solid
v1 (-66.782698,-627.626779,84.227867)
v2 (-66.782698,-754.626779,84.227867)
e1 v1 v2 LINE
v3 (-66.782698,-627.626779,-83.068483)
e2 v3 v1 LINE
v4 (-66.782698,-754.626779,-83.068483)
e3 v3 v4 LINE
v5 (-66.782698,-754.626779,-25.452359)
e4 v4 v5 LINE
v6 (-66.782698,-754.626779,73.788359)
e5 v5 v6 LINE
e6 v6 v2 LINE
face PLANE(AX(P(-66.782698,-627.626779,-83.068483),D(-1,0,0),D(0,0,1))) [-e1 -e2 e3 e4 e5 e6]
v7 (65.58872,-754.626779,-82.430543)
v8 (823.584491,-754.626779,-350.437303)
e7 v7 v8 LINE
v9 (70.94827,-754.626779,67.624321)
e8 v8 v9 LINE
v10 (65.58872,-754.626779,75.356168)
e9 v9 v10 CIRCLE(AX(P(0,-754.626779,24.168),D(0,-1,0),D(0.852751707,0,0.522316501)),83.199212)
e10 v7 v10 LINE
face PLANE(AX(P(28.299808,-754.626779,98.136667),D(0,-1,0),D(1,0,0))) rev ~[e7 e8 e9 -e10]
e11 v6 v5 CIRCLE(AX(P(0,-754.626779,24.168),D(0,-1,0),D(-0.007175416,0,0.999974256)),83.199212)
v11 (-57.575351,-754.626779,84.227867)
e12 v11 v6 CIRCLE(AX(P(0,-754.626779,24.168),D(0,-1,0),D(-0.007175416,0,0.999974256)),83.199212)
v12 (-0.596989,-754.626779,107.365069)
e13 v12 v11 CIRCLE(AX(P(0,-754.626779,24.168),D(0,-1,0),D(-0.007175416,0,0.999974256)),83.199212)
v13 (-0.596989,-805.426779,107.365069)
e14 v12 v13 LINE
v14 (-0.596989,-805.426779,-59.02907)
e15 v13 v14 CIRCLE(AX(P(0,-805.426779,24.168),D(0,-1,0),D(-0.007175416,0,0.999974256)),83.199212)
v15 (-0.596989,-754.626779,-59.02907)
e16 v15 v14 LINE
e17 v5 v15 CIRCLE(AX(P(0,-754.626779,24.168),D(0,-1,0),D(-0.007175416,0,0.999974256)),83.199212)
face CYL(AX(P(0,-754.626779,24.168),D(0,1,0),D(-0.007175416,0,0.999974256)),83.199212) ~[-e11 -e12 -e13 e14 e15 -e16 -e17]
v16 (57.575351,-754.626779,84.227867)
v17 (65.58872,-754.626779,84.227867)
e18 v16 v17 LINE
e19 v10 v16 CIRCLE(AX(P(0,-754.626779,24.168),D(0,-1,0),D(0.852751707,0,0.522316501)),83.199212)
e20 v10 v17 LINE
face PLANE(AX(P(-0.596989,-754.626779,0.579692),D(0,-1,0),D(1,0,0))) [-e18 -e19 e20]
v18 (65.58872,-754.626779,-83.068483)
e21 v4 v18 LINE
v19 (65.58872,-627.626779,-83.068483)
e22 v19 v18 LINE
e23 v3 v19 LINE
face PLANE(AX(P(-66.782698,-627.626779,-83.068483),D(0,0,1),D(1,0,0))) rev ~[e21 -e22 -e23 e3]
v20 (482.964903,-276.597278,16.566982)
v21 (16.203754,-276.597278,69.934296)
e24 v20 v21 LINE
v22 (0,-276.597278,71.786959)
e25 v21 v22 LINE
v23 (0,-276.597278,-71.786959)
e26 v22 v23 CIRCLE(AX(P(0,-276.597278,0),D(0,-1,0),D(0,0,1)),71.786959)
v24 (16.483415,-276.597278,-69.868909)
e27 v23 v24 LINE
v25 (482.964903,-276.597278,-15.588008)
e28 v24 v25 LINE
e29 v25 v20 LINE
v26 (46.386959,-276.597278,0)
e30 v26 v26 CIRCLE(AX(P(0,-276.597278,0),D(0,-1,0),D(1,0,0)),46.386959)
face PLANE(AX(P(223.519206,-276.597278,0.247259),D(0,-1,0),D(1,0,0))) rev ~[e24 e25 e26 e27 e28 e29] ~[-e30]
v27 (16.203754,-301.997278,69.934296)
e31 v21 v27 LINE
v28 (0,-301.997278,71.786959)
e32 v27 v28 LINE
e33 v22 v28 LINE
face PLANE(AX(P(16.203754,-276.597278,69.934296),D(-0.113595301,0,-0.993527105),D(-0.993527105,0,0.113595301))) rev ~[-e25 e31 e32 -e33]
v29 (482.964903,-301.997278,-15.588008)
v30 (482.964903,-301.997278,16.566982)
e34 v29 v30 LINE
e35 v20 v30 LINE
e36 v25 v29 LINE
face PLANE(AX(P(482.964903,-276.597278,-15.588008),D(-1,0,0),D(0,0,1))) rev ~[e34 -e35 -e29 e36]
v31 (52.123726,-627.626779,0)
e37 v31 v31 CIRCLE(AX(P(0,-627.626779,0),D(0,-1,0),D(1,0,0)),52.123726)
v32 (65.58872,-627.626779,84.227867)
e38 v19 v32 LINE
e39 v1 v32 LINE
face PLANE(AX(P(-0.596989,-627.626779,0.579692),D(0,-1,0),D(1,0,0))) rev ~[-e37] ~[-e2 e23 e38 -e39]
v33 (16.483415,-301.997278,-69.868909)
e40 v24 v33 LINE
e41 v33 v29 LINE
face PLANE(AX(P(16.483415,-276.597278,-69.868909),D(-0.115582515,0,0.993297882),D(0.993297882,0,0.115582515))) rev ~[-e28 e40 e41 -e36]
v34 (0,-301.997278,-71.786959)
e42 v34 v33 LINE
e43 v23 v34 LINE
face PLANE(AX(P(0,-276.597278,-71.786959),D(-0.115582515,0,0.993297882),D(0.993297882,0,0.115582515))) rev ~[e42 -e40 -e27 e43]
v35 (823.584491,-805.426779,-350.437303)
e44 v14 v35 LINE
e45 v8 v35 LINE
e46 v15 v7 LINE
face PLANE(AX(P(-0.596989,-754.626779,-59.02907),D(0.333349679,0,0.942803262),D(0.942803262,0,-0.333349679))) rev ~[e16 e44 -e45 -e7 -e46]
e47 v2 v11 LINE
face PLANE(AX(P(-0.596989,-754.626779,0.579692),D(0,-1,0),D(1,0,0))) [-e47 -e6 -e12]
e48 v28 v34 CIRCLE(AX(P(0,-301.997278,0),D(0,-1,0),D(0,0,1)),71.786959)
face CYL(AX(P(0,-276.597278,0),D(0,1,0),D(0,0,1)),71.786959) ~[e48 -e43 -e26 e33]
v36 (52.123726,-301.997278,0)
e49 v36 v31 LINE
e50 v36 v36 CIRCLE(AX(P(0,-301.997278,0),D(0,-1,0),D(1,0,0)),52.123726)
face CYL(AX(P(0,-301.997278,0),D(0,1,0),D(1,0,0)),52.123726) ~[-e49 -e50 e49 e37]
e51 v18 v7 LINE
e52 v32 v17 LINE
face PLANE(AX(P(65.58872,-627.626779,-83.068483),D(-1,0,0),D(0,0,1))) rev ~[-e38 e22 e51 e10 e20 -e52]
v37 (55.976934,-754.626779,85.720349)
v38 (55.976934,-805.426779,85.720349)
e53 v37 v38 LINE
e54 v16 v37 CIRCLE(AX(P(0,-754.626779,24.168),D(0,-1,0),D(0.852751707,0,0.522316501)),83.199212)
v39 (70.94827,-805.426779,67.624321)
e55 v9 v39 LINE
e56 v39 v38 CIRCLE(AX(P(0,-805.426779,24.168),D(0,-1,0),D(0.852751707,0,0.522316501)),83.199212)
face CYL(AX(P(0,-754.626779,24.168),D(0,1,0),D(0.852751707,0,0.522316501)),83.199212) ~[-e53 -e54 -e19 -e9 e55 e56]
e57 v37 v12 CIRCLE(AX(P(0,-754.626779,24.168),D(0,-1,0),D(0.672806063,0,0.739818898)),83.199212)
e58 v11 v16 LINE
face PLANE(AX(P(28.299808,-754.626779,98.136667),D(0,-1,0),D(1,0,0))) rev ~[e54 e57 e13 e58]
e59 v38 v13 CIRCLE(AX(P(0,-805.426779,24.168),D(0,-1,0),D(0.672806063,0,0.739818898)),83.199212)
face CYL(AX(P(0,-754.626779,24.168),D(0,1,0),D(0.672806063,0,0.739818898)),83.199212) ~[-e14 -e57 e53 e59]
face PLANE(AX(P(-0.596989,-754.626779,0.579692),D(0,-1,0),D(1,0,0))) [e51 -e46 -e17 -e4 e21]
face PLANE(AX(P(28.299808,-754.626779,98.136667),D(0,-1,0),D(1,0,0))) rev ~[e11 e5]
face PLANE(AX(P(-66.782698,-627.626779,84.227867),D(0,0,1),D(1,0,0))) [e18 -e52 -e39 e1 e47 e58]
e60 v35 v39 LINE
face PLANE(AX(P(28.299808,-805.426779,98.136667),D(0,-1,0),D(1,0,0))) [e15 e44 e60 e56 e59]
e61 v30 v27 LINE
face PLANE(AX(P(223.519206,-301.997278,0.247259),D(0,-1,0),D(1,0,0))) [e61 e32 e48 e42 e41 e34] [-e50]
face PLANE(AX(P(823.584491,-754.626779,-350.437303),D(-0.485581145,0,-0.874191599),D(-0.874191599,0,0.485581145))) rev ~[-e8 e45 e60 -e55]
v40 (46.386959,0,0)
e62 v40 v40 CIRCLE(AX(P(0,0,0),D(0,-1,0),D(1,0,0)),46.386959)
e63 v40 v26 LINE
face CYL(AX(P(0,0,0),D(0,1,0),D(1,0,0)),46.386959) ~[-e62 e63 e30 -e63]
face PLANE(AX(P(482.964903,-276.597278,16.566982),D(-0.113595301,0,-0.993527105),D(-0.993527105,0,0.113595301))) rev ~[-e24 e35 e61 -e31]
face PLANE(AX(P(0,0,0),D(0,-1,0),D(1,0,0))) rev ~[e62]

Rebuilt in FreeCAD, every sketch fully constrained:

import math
import FreeCAD as App
import Part
import Sketcher
from FreeCAD import Vector
Q = App.Units.Quantity


def add_polygon(sketch, points):
    """Adds a closed chain of lines whose ends are joined by coincident constraints."""
    first, n = sketch.GeometryCount, len(points)
    for a, b in zip(points, points[1:] + points[:1]):
        sketch.addGeometry(Part.LineSegment(App.Vector(*a, 0), App.Vector(*b, 0)), False)
    for i in range(n):
        sketch.addConstraint(Sketcher.Constraint("Coincident", first + i, 2, first + (i + 1) % n, 1))

doc = App.newDocument("Part")
params = doc.addObject("Spreadsheet::Sheet", "Params")
for row, (alias, value) in enumerate([
    ("pad1_length", "276.597278 mm"),
    ("pad2_length", "1 in"),
    ("pad3_length", "325.629501 mm"),
    ("pad4_length", "5 in"),
    ("pad5_length", "2 in"),
], start=1):
    params.set(f"A{row}", alias)
    params.set(f"B{row}", "=" + value)
    params.setAlias(f"B{row}", alias)

body = doc.addObject("PartDesign::Body", "Body")

# Sketch on XZ plane
sketch1 = doc.addObject("Sketcher::SketchObject", "Sketch")
body.addObject(sketch1)
sketch1.AttachmentSupport = (doc.XZ_Plane, [""])
sketch1.MapMode = "FlatFace"
sketch1.addGeometry(Part.Circle(Vector(0, 0, 0), Vector(0, 0, 1), 46), False)
sketch1.addConstraint([
    Sketcher.Constraint("Coincident", 0, 3, -1, 1),
    Sketcher.Constraint("Diameter", 0, Q("92.773918 mm")),
])
pad1 = doc.addObject("PartDesign::Pad", "Pad")
body.addObject(pad1)
pad1.Profile = sketch1
pad1.setExpression("Length", "Params.pad1_length")

# Sketch on XZ plane
sketch2 = doc.addObject("Sketcher::SketchObject", "Sketch001")
body.addObject(sketch2)
sketch2.AttachmentSupport = (doc.XZ_Plane, [""])
sketch2.MapMode = "FlatFace"
sketch2.AttachmentOffset = App.Placement(Vector(0, 0, 276.597278), App.Rotation())
sketch2.addGeometry([
    Part.LineSegment(Vector(483, 17, 0), Vector(16, 70, 0)),  # 0
    Part.LineSegment(Vector(16, 70, 0), Vector(0, 72, 0)),  # 1
    Part.ArcOfCircle(Part.Circle(Vector(0, 0, 0), Vector(0, 0, 1), 72), math.radians(90), math.radians(270)),  # 2
    Part.LineSegment(Vector(0, -72, 0), Vector(16, -70, 0)),  # 3
    Part.LineSegment(Vector(16, -70, 0), Vector(483, -16, 0)),  # 4
    Part.LineSegment(Vector(483, -16, 0), Vector(483, 17, 0)),  # 5
], False)
sketch2.addConstraint([
    Sketcher.Constraint("Coincident", 0, 2, 1, 1),
    Sketcher.Constraint("Coincident", 1, 2, 2, 1),
    Sketcher.Constraint("Coincident", 2, 2, 3, 1),
    Sketcher.Constraint("Coincident", 3, 2, 4, 1),
    Sketcher.Constraint("Coincident", 4, 2, 5, 1),
    Sketcher.Constraint("Coincident", 5, 2, 0, 1),
    Sketcher.Constraint("Vertical", 5),
    Sketcher.Constraint("Coincident", 2, 3, -1, 1),
    Sketcher.Constraint("PointOnObject", 1, 2, -2),
    Sketcher.Constraint("PointOnObject", 2, 2, -2),
    Sketcher.Constraint("Parallel", 0, 1),
    Sketcher.Constraint("Parallel", 3, 4),
    Sketcher.Constraint("Radius", 2, Q("71.786959 mm")),
    Sketcher.Constraint("DistanceY", 5, 1, 5, 2, Q("32.154991 mm")),
    Sketcher.Constraint("DistanceY", 3, 2, 4, 2, Q("54.280901 mm")),
    Sketcher.Constraint("Distance", 0, Q("469.802129 mm")),
    Sketcher.Constraint("DistanceY", 3, 2, -1, 1, Q("69.868909 mm")),
    Sketcher.Constraint("DistanceX", 0, 2, 3, 2, Q("0.279661 mm")),
])
pad2 = doc.addObject("PartDesign::Pad", "Pad001")
body.addObject(pad2)
pad2.Profile = sketch2
pad2.setExpression("Length", "Params.pad2_length")

# Sketch on XZ plane
sketch3 = doc.addObject("Sketcher::SketchObject", "Sketch002")
body.addObject(sketch3)
sketch3.AttachmentSupport = (doc.XZ_Plane, [""])
sketch3.MapMode = "FlatFace"
sketch3.AttachmentOffset = App.Placement(Vector(0, 0, 301.997278), App.Rotation())
sketch3.addGeometry(Part.Circle(Vector(0, 0, 0), Vector(0, 0, 1), 52), False)
sketch3.addConstraint([
    Sketcher.Constraint("Coincident", 0, 3, -1, 1),
    Sketcher.Constraint("Diameter", 0, Q("104.247451 mm")),
])
pad3 = doc.addObject("PartDesign::Pad", "Pad002")
body.addObject(pad3)
pad3.Profile = sketch3
pad3.setExpression("Length", "Params.pad3_length")

# Sketch on XZ plane
sketch4 = doc.addObject("Sketcher::SketchObject", "Sketch003")
body.addObject(sketch4)
sketch4.AttachmentSupport = (doc.XZ_Plane, [""])
sketch4.MapMode = "FlatFace"
sketch4.AttachmentOffset = App.Placement(Vector(0, 0, 627.626779), App.Rotation())
add_polygon(sketch4, [(-67, 84), (-67, -83), (66, -83), (66, 84)])  # lines 0-3
sketch4.addConstraint([
    Sketcher.Constraint("Vertical", 0),
    Sketcher.Constraint("Horizontal", 1),
    Sketcher.Constraint("Vertical", 2),
    Sketcher.Constraint("Horizontal", 3),
    Sketcher.Constraint("DistanceX", 1, 1, 1, 2, Q("132.371418 mm")),
    Sketcher.Constraint("DistanceY", 0, 2, 0, 1, Q("167.29635 mm")),
    Sketcher.Constraint("DistanceX", 0, 2, -1, 1, Q("66.782698 mm")),
    Sketcher.Constraint("DistanceY", 0, 2, -1, 1, Q("83.068483 mm")),
])
pad4 = doc.addObject("PartDesign::Pad", "Pad003")
body.addObject(pad4)
pad4.Profile = sketch4
pad4.setExpression("Length", "Params.pad4_length")

# Sketch on XZ plane
sketch5 = doc.addObject("Sketcher::SketchObject", "Sketch004")
body.addObject(sketch5)
sketch5.AttachmentSupport = (doc.XZ_Plane, [""])
sketch5.MapMode = "FlatFace"
sketch5.AttachmentOffset = App.Placement(Vector(0, 0, 754.626779), App.Rotation())
sketch5.addGeometry([
    Part.ArcOfCircle(Part.Circle(Vector(0, 24, 0), Vector(0, 0, 1), 83), math.radians(48), math.radians(90)),  # 0
    Part.ArcOfCircle(Part.Circle(Vector(0, 24, 0), Vector(0, 0, 1), 83), math.radians(90), math.radians(270)),  # 1
    Part.LineSegment(Vector(-1, -59, 0), Vector(824, -350, 0)),  # 2
    Part.LineSegment(Vector(824, -350, 0), Vector(71, 68, 0)),  # 3
    Part.ArcOfCircle(Part.Circle(Vector(0, 24, 0), Vector(0, 0, 1), 83), math.radians(31.49), math.radians(47.72)),  # 4
], False)
sketch5.addConstraint([
    Sketcher.Constraint("Tangent", 0, 2, 1, 1),
    Sketcher.Constraint("Coincident", 1, 2, 2, 1),
    Sketcher.Constraint("Coincident", 2, 2, 3, 1),
    Sketcher.Constraint("Coincident", 3, 2, 4, 1),
    Sketcher.Constraint("Tangent", 4, 2, 0, 1),
    Sketcher.Constraint("Equal", 0, 1),
    Sketcher.Constraint("Equal", 1, 4),
    Sketcher.Constraint("PointOnObject", 0, 3, -2),
    Sketcher.Constraint("Vertical", 0, 2, 1, 2),
    Sketcher.Constraint("Radius", 0, Q("83.199212 mm")),
    Sketcher.Constraint("DistanceY", -1, 1, 0, 3, Q("24.168 mm")),
    Sketcher.Constraint("Distance", 2, Q("874.181829 mm")),
    Sketcher.Constraint("DistanceX", 0, 2, -1, 1, Q("0.596989 mm")),
    Sketcher.Constraint("DistanceX", -1, 1, 2, 2, Q("823.584491 mm")),
    Sketcher.Constraint("DistanceX", -1, 1, 3, 2, Q("70.94827 mm")),
    Sketcher.Constraint("DistanceY", -1, 1, 4, 2, Q("85.720349 mm")),
])
pad5 = doc.addObject("PartDesign::Pad", "Pad004")
body.addObject(pad5)
pad5.Profile = sketch5
pad5.setExpression("Length", "Params.pad5_length")

doc.recompute()
